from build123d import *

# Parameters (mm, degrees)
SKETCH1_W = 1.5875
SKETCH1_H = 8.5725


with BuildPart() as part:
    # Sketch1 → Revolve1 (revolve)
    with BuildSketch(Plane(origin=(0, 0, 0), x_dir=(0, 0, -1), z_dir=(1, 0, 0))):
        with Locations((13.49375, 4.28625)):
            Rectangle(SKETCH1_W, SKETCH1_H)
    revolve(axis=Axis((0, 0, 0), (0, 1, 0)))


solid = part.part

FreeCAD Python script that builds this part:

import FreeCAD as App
import Part
import Sketcher

V = App.Vector
Q = App.Units.Quantity

doc = App.newDocument("Part")
body = doc.addObject("PartDesign::Body", "Body")

sketch1 = body.newObject("Sketcher::SketchObject", "Sketch")
sketch1.AttachmentSupport = (doc.getObject("YZ_Plane"), [""])
sketch1.MapMode = "FlatFace"
sketch1.addGeometry(Part.LineSegment(V(8.5725, -12.7, 0), V(0, -12.7, 0)), False)
sketch1.addGeometry(Part.LineSegment(V(0, -12.7, 0), V(0, -14.2875, 0)), False)
sketch1.addGeometry(Part.LineSegment(V(0, -14.2875, 0), V(8.5725, -14.2875, 0)), False)
sketch1.addGeometry(Part.LineSegment(V(8.5725, -14.2875, 0), V(8.5725, -12.7, 0)), False)
sketch1.addConstraint(Sketcher.Constraint("Coincident", 0, 2, 1, 1))
sketch1.addConstraint(Sketcher.Constraint("Coincident", 1, 2, 2, 1))
sketch1.addConstraint(Sketcher.Constraint("Coincident", 2, 2, 3, 1))
sketch1.addConstraint(Sketcher.Constraint("Coincident", 3, 2, 0, 1))
sketch1.addConstraint(Sketcher.Constraint("Horizontal", 0))
sketch1.addConstraint(Sketcher.Constraint("Vertical", 1))
sketch1.addConstraint(Sketcher.Constraint("Horizontal", 2))
sketch1.addConstraint(Sketcher.Constraint("Vertical", 3))
sketch1.addConstraint(Sketcher.Constraint("PointOnObject", 0, 2, -2))
sketch1.addConstraint(Sketcher.Constraint("DistanceY", 0, 2, -1, 1, Q("0.5 in")))
sketch1.addConstraint(Sketcher.Constraint("DistanceY", 1, 2, 1, 1, Q("0.0625 in")))
sketch1.addConstraint(Sketcher.Constraint("DistanceX", 0, 2, 0, 1, Q("0.3375 in")))
revolution = body.newObject("PartDesign::Revolution", "Revolution")
revolution.Profile = sketch1
revolution.ReferenceAxis = (sketch1, ["H_Axis"])
revolution.Angle = 360

doc.recompute()
